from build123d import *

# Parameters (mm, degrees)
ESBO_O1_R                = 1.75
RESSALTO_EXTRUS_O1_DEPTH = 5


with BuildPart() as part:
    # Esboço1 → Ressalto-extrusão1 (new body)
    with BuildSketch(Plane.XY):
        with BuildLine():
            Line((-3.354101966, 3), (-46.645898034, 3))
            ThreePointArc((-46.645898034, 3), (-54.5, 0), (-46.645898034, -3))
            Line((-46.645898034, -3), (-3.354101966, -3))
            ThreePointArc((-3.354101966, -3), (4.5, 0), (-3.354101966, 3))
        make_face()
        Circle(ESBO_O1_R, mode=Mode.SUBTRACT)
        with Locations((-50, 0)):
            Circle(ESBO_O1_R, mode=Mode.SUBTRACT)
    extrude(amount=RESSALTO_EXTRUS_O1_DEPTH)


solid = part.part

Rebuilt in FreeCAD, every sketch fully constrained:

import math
import FreeCAD as App
import Part
import Sketcher
Q = App.Units.Quantity

doc = App.newDocument("Part")
body = doc.addObject("PartDesign::Body", "Body")

sketch1 = doc.addObject("Sketcher::SketchObject", "Sketch")
body.addObject(sketch1)
sketch1.AttachmentSupport = (doc.XY_Plane, [""])
sketch1.MapMode = "FlatFace"
sketch1.addGeometry([
    Part.LineSegment(App.Vector(-3.4, 3, 0), App.Vector(-46.6, 3, 0)),
    Part.ArcOfCircle(Part.Circle(App.Vector(-50, 0, 0), App.Vector(0, 0, 1), 4.5), math.radians(42), math.radians(318)),
    Part.LineSegment(App.Vector(-46.6, -3, 0), App.Vector(-3.4, -3, 0)),
    Part.ArcOfCircle(Part.Circle(App.Vector(0, 0, 0), App.Vector(0, 0, 1), 4.5), math.radians(-138), math.radians(138)),
    Part.Circle(App.Vector(-50, 0, 0), App.Vector(0, 0, 1), 1.8),
    Part.Circle(App.Vector(0, 0, 0), App.Vector(0, 0, 1), 1.8),
], False)
sketch1.addConstraint([
    Sketcher.Constraint("Coincident", 0, 2, 1, 1),
    Sketcher.Constraint("Coincident", 1, 2, 2, 1),
    Sketcher.Constraint("Coincident", 2, 2, 3, 1),
    Sketcher.Constraint("Coincident", 3, 2, 0, 1),
    Sketcher.Constraint("Horizontal", 0),
    Sketcher.Constraint("Horizontal", 2),
    Sketcher.Constraint("Coincident", 3, 3, -1, 1),
    Sketcher.Constraint("Coincident", 5, 3, -1, 1),
    Sketcher.Constraint("Coincident", 4, 3, 1, 3),
    Sketcher.Constraint("Equal", 1, 3),
    Sketcher.Constraint("Equal", 4, 5),
    Sketcher.Constraint("Symmetric", 0, 2, 1, 2, -1),
    Sketcher.Constraint("Diameter", 4, Q("3.5 mm")),
    Sketcher.Constraint("Radius", 1, Q("4.5 mm")),
    Sketcher.Constraint("DistanceX", 1, 3, -1, 1, Q("50 mm")),
    Sketcher.Constraint("DistanceY", -1, 1, 0, 2, Q("3 mm")),
])
pad1 = doc.addObject("PartDesign::Pad", "Pad")
body.addObject(pad1)
pad1.Profile = sketch1
pad1.Length = 5

doc.recompute()
